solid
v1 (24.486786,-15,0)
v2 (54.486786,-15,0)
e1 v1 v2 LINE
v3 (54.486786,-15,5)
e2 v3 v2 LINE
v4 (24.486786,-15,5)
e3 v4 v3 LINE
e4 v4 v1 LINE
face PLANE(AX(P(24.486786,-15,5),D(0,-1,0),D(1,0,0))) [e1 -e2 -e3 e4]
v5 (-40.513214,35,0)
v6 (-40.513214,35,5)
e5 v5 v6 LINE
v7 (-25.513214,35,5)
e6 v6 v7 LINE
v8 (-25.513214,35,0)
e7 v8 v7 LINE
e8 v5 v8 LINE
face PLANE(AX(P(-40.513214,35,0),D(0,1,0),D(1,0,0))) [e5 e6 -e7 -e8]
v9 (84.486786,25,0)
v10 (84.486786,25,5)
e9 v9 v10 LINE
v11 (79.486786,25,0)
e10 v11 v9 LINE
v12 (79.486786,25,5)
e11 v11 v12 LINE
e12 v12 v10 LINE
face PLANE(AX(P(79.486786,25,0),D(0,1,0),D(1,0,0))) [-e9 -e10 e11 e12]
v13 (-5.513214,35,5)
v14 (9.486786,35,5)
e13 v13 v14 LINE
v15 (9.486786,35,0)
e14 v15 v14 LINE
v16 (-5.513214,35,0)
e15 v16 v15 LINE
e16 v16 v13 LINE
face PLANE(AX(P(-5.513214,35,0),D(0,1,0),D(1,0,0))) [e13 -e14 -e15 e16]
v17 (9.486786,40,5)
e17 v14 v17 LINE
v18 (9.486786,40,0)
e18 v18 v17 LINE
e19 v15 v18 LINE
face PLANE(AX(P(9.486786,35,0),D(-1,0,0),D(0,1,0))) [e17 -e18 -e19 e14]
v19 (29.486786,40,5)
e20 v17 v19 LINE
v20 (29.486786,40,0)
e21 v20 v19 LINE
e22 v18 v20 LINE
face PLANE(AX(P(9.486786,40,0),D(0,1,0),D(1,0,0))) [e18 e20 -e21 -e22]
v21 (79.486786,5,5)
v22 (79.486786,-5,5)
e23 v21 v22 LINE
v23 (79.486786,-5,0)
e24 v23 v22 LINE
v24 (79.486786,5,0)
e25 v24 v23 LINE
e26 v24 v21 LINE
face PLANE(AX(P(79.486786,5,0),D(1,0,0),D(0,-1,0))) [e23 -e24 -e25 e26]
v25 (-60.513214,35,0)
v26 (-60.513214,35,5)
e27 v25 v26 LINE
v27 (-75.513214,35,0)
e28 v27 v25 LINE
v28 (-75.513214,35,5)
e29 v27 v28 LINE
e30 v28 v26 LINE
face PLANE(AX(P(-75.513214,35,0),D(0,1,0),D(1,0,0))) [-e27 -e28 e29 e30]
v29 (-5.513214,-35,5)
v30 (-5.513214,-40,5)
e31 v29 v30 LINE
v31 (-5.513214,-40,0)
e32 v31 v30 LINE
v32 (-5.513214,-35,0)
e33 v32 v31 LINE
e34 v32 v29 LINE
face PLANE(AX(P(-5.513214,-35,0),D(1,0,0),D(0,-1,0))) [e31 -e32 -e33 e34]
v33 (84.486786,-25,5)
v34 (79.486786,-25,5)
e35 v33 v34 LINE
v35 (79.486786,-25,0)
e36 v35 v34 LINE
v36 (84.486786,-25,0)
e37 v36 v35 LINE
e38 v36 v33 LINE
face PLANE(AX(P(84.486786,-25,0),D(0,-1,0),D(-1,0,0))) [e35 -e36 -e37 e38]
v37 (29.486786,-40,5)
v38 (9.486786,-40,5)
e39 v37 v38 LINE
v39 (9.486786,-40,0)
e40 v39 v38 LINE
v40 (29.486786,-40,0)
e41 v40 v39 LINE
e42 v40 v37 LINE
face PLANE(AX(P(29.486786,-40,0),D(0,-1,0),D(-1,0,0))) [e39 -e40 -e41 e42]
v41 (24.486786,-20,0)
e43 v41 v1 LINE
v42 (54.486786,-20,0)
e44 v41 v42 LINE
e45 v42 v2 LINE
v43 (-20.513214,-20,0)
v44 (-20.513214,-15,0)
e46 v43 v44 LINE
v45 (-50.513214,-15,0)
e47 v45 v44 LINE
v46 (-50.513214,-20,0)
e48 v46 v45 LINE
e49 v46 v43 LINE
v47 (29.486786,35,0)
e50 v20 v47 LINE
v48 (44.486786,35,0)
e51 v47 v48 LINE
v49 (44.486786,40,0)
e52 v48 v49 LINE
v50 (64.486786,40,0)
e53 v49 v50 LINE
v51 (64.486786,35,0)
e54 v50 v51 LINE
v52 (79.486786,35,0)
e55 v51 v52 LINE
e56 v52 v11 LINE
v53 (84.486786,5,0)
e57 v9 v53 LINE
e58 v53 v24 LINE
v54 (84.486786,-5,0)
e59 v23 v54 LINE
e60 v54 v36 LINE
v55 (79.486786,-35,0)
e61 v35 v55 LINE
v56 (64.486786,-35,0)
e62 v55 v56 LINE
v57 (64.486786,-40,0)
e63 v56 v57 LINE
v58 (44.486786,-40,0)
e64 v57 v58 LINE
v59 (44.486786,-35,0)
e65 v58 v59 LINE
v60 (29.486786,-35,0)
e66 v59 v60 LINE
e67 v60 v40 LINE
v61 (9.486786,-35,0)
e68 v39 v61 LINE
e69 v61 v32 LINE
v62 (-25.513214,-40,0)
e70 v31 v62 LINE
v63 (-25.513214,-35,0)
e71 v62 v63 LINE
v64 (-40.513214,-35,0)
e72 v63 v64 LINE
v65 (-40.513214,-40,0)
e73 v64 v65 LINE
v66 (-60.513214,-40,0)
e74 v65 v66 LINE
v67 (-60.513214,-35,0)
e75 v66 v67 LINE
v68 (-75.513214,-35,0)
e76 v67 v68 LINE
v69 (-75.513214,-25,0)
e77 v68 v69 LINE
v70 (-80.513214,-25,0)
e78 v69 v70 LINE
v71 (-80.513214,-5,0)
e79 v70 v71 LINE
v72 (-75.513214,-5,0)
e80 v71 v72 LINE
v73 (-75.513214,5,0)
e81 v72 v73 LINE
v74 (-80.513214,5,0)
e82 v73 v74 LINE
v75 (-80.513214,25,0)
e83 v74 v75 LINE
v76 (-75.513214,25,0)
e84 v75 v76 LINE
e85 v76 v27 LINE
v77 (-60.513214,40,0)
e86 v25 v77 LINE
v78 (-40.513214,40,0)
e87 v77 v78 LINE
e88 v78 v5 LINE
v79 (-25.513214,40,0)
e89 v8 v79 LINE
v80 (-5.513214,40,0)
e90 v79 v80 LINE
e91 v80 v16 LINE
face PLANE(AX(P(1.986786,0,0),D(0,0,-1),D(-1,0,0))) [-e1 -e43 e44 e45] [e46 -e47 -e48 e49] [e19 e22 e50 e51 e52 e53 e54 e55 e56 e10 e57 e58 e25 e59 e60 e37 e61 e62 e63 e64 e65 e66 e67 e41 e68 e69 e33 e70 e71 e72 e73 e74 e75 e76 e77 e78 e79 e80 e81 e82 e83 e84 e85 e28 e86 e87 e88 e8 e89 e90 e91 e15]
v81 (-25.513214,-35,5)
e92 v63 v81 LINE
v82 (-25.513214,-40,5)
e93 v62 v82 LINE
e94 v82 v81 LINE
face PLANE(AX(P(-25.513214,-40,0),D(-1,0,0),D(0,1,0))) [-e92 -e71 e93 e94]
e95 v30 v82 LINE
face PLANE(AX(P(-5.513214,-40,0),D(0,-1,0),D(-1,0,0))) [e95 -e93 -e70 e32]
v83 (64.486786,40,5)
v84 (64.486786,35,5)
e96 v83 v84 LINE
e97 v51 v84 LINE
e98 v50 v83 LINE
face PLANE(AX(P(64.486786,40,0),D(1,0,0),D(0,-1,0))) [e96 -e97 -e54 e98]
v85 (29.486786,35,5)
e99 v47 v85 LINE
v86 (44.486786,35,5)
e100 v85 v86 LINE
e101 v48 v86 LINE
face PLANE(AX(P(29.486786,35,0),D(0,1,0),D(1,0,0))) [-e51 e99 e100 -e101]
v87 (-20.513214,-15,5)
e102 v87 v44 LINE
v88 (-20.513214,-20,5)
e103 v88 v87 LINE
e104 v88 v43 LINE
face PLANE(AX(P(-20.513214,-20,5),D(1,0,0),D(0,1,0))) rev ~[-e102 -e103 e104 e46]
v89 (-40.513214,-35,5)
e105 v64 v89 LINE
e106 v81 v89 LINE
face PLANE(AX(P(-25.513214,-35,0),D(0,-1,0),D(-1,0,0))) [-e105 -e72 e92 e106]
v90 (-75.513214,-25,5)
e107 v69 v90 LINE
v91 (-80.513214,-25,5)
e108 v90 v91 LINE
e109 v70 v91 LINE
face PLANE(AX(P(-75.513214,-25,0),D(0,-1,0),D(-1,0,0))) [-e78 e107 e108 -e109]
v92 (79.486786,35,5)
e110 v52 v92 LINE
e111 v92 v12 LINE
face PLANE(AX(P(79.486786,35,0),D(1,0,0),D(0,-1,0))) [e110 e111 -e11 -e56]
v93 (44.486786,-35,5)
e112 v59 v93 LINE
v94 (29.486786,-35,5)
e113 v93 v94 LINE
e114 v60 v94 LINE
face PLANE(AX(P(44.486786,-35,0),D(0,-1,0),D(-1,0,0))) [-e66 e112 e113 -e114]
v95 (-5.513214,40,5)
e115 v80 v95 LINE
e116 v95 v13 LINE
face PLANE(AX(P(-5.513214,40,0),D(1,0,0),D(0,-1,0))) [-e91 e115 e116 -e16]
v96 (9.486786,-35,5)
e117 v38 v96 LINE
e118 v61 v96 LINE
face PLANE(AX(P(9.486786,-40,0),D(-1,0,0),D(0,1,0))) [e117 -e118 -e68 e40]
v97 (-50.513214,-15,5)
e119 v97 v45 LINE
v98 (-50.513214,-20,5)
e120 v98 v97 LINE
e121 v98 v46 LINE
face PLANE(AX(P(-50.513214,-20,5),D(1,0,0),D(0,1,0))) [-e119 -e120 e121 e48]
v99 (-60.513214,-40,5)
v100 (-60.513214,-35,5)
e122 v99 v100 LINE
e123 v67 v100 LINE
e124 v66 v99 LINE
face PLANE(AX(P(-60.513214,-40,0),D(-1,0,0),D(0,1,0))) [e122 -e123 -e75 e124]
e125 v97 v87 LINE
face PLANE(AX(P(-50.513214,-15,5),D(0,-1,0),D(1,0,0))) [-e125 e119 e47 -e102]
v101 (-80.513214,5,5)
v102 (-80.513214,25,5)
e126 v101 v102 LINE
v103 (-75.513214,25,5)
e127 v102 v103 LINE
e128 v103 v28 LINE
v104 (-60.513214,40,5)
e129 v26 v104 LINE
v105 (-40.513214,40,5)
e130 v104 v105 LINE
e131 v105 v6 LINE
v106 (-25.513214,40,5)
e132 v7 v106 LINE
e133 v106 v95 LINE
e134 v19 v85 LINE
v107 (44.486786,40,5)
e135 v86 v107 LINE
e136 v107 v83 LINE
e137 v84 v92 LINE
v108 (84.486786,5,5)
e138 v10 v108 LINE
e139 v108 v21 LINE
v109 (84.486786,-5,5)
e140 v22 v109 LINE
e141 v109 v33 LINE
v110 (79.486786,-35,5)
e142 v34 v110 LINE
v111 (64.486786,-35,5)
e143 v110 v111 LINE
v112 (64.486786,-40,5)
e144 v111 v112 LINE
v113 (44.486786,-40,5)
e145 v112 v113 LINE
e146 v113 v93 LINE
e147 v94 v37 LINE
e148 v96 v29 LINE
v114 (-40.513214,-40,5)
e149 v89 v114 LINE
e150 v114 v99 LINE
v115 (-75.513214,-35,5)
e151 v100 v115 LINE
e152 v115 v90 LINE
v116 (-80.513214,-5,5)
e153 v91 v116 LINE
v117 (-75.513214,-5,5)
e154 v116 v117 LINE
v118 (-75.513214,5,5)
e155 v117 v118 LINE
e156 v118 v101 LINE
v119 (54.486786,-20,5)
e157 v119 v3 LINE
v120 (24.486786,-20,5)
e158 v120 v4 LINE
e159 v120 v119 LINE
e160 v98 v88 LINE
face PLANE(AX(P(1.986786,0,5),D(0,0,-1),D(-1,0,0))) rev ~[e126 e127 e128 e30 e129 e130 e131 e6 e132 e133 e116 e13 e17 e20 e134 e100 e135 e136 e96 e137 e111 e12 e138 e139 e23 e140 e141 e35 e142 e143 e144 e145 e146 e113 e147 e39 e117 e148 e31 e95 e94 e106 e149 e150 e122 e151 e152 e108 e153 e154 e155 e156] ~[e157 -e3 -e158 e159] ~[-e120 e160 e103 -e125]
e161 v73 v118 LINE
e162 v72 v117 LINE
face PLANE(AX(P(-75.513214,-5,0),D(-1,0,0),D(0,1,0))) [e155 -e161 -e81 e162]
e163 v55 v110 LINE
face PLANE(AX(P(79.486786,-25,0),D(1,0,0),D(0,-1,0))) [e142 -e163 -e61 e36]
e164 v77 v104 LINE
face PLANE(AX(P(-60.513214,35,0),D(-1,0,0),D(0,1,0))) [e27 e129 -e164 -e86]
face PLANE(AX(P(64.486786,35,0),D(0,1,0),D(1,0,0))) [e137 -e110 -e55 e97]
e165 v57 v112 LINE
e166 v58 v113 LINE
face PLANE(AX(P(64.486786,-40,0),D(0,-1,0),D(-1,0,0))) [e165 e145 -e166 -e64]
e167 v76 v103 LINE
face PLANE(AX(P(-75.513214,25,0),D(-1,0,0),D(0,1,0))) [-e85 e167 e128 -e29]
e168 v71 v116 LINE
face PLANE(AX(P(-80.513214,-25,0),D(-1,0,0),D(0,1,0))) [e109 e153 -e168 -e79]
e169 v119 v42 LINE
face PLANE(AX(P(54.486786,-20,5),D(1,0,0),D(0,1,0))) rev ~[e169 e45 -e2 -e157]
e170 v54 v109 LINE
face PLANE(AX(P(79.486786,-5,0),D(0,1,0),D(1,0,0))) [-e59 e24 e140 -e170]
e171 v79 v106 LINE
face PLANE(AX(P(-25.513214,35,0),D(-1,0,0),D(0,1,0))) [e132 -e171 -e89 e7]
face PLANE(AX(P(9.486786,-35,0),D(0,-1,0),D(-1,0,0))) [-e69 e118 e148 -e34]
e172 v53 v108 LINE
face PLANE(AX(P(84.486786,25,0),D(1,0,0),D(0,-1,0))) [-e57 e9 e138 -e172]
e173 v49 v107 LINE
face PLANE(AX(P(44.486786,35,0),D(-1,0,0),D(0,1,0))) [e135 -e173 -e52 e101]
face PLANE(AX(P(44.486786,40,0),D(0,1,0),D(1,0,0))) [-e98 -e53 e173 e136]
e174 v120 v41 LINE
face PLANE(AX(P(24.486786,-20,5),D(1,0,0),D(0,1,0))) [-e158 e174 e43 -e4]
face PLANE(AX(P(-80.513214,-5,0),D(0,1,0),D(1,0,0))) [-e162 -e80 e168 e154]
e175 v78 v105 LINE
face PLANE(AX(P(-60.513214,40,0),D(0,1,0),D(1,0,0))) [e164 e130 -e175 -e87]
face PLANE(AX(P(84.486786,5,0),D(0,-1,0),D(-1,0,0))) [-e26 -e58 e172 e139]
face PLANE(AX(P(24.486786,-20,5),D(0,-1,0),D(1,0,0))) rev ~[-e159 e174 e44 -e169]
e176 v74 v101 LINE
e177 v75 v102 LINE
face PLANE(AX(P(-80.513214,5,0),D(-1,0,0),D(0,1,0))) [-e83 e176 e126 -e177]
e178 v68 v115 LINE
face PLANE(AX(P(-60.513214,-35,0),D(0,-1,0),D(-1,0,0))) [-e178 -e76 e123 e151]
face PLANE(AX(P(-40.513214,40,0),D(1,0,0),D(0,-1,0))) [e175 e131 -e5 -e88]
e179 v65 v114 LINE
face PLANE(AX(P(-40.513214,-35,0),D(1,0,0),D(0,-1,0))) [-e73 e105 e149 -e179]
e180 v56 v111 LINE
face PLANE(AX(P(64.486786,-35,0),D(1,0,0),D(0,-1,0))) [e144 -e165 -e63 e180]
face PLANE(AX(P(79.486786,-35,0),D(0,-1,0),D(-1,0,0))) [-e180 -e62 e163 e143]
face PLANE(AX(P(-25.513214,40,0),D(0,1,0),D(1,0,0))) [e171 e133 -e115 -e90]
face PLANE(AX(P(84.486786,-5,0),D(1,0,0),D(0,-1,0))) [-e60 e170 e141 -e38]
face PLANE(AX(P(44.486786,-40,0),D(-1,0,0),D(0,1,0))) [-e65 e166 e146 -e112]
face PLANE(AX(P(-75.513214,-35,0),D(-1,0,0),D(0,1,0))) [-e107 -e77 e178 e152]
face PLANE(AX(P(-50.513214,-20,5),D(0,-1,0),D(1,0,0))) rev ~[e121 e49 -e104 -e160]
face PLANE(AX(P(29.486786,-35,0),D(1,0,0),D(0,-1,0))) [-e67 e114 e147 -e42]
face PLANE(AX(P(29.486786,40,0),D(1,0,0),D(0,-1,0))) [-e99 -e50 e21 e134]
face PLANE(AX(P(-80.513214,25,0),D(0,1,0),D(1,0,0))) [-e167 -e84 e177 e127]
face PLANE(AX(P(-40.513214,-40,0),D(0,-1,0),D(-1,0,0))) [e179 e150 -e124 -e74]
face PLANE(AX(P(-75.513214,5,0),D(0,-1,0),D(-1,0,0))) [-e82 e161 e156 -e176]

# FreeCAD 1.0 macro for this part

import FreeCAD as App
import Part
import Sketcher

V = App.Vector


def add_polygon(sketch, points):
    """Adds a closed chain of lines whose ends are joined by coincident constraints."""
    first, n = sketch.GeometryCount, len(points)
    for a, b in zip(points, points[1:] + points[:1]):
        sketch.addGeometry(Part.LineSegment(App.Vector(*a, 0), App.Vector(*b, 0)), False)
    for i in range(n):
        sketch.addConstraint(Sketcher.Constraint("Coincident", first + i, 2, first + (i + 1) % n, 1))

doc = App.newDocument("Part")
body = doc.addObject("PartDesign::Body", "Body")

sketch1 = body.newObject("Sketcher::SketchObject", "Sketch")
sketch1.AttachmentSupport = (doc.getObject("XY_Plane"), [""])
sketch1.MapMode = "FlatFace"
add_polygon(sketch1, [(-61, 35), (-76, 35), (-76, 25), (-81, 25), (-81, 5), (-76, 5), (-76, -5), (-81, -5), (-81, -25), (-76, -25), (-76, -35), (-61, -35), (-61, -40), (-41, -40), (-41, -35), (-26, -35), (-26, -40), (-6, -40), (-6, -35), (9, -35), (9, -40), (29, -40), (29, -35), (44, -35), (44, -40), (64, -40), (64, -35), (79, -35), (79, -25), (84, -25), (84, -5), (79, -5), (79, 5), (84, 5), (84, 25), (79, 25), (79, 35), (64, 35), (64, 40), (44, 40), (44, 35), (29, 35), (29, 40), (9, 40), (9, 35), (-6, 35), (-6, 40), (-26, 40), (-26, 35), (-41, 35), (-41, 40), (-61, 40)])
sketch1.addConstraint([
    Sketcher.Constraint("Horizontal", 0),
    Sketcher.Constraint("Vertical", 1),
    Sketcher.Constraint("Horizontal", 2),
    Sketcher.Constraint("Vertical", 3),
    Sketcher.Constraint("Horizontal", 4),
    Sketcher.Constraint("Vertical", 5),
    Sketcher.Constraint("Horizontal", 6),
    Sketcher.Constraint("Vertical", 7),
    Sketcher.Constraint("Horizontal", 8),
    Sketcher.Constraint("Vertical", 9),
    Sketcher.Constraint("Horizontal", 10),
    Sketcher.Constraint("Vertical", 11),
    Sketcher.Constraint("Horizontal", 12),
    Sketcher.Constraint("Vertical", 13),
    Sketcher.Constraint("Horizontal", 14),
    Sketcher.Constraint("Vertical", 15),
    Sketcher.Constraint("Horizontal", 16),
    Sketcher.Constraint("Vertical", 17),
    Sketcher.Constraint("Horizontal", 18),
    Sketcher.Constraint("Vertical", 19),
    Sketcher.Constraint("Horizontal", 20),
    Sketcher.Constraint("Vertical", 21),
    Sketcher.Constraint("Horizontal", 22),
    Sketcher.Constraint("Vertical", 23),
    Sketcher.Constraint("Horizontal", 24),
    Sketcher.Constraint("Vertical", 25),
    Sketcher.Constraint("Horizontal", 26),
    Sketcher.Constraint("Vertical", 27),
    Sketcher.Constraint("Horizontal", 28),
    Sketcher.Constraint("Vertical", 29),
    Sketcher.Constraint("Horizontal", 30),
    Sketcher.Constraint("Vertical", 31),
    Sketcher.Constraint("Horizontal", 32),
    Sketcher.Constraint("Vertical", 33),
    Sketcher.Constraint("Horizontal", 34),
    Sketcher.Constraint("Vertical", 35),
    Sketcher.Constraint("Horizontal", 36),
    Sketcher.Constraint("Vertical", 37),
    Sketcher.Constraint("Horizontal", 38),
    Sketcher.Constraint("Vertical", 39),
    Sketcher.Constraint("Horizontal", 40),
    Sketcher.Constraint("Vertical", 41),
    Sketcher.Constraint("Horizontal", 42),
    Sketcher.Constraint("Vertical", 43),
    Sketcher.Constraint("Horizontal", 44),
    Sketcher.Constraint("Vertical", 45),
    Sketcher.Constraint("Horizontal", 46),
    Sketcher.Constraint("Vertical", 47),
    Sketcher.Constraint("Horizontal", 48),
    Sketcher.Constraint("Vertical", 49),
    Sketcher.Constraint("Horizontal", 50),
    Sketcher.Constraint("Vertical", 51),
    Sketcher.Constraint("Symmetric", 3, 2, 6, 2, -1),
    Sketcher.Constraint("Symmetric", 1, 2, 8, 2, -1),
    Sketcher.Constraint("Symmetric", 29, 2, 32, 2, -1),
    Sketcher.Constraint("Symmetric", 27, 2, 34, 2, -1),
    Sketcher.Constraint("Symmetric", 25, 2, 36, 2, -1),
    Sketcher.Constraint("Symmetric", 23, 2, 38, 2, -1),
    Sketcher.Constraint("Symmetric", 21, 2, 40, 2, -1),
    Sketcher.Constraint("Symmetric", 19, 2, 42, 2, -1),
    Sketcher.Constraint("Symmetric", 17, 2, 44, 2, -1),
    Sketcher.Constraint("Symmetric", 15, 2, 46, 2, -1),
    Sketcher.Constraint("Symmetric", 13, 2, 48, 2, -1),
    Sketcher.Constraint("Symmetric", 11, 2, 50, 2, -1),
    Sketcher.Constraint("Horizontal", 10, 2, 13, 2),
    Sketcher.Constraint("Horizontal", 12, 2, 15, 2),
    Sketcher.Constraint("Horizontal", 14, 2, 17, 2),
    Sketcher.Constraint("Horizontal", 16, 2, 19, 2),
    Sketcher.Constraint("Horizontal", 18, 2, 21, 2),
    Sketcher.Constraint("Horizontal", 20, 2, 23, 2),
    Sketcher.Constraint("Horizontal", 22, 2, 25, 2),
    Sketcher.Constraint("Horizontal", 8, 2, 27, 2),
    Sketcher.Constraint("Horizontal", 6, 2, 29, 2),
    Sketcher.Constraint("Horizontal", 0, 2, 35, 2),
    Sketcher.Constraint("Vertical", 1, 2, 4, 2),
    Sketcher.Constraint("Vertical", 27, 2, 30, 2),
    Sketcher.Constraint("Equal", 10, 14),
    Sketcher.Constraint("Equal", 12, 16),
    Sketcher.Constraint("Equal", 14, 18),
    Sketcher.Constraint("Equal", 16, 20),
    Sketcher.Constraint("Equal", 18, 22),
    Sketcher.Constraint("Equal", 20, 24),
    Sketcher.Constraint("Equal", 22, 26),
    Sketcher.Constraint("Equal", 8, 28),
    Sketcher.Constraint("Equal", 50, 3),
    Sketcher.Constraint("Equal", 1, 5),
    Sketcher.Constraint("Equal", 34, 11),
    Sketcher.Constraint("DistanceX", 0, 2, 0, 1, 15.0),
    Sketcher.Constraint("DistanceX", 2, 2, 2, 1, 5.0),
    Sketcher.Constraint("DistanceX", 12, 1, 12, 2, 20.0),
    Sketcher.Constraint("DistanceY", 1, 2, 1, 1, 10.0),
    Sketcher.Constraint("DistanceX", 0, 2, -1, 1, 75.513214),
])
pad1 = body.newObject("PartDesign::Pad", "Pad")
pad1.Profile = sketch1
pad1.Length = 5

sketch2 = body.newObject("Sketcher::SketchObject", "Sketch001")
sketch2.AttachmentSupport = (doc.getObject("XY_Plane"), [""])
sketch2.MapMode = "FlatFace"
sketch2.AttachmentOffset = App.Placement(V(0, 0, 5), App.Rotation())
add_polygon(sketch2, [(24, -15), (24, -20), (54, -20), (54, -15)])
add_polygon(sketch2, [(-51, -15), (-51, -20), (-21, -20), (-21, -15)])
sketch2.addConstraint([
    Sketcher.Constraint("Vertical", 0),
    Sketcher.Constraint("Horizontal", 1),
    Sketcher.Constraint("Vertical", 2),
    Sketcher.Constraint("Horizontal", 3),
    Sketcher.Constraint("Vertical", 4),
    Sketcher.Constraint("Horizontal", 5),
    Sketcher.Constraint("Vertical", 6),
    Sketcher.Constraint("Horizontal", 7),
    Sketcher.Constraint("Horizontal", 1, 2, 4, 2),
    Sketcher.Constraint("Horizontal", 3, 2, 6, 2),
    Sketcher.Constraint("Equal", 3, 5),
    Sketcher.Constraint("DistanceX", 1, 1, 1, 2, 30.0),
    Sketcher.Constraint("DistanceY", 0, 2, 0, 1, 5.0),
    Sketcher.Constraint("DistanceY", 0, 2, -1, 1, 20.0),
    Sketcher.Constraint("DistanceX", 4, 2, 0, 2, 75.0),
    Sketcher.Constraint("DistanceX", -1, 1, 0, 2, 24.486786),
])
pocket1 = body.newObject("PartDesign::Pocket", "Pocket")
pocket1.Profile = sketch2
pocket1.Length = 5

doc.recompute()
